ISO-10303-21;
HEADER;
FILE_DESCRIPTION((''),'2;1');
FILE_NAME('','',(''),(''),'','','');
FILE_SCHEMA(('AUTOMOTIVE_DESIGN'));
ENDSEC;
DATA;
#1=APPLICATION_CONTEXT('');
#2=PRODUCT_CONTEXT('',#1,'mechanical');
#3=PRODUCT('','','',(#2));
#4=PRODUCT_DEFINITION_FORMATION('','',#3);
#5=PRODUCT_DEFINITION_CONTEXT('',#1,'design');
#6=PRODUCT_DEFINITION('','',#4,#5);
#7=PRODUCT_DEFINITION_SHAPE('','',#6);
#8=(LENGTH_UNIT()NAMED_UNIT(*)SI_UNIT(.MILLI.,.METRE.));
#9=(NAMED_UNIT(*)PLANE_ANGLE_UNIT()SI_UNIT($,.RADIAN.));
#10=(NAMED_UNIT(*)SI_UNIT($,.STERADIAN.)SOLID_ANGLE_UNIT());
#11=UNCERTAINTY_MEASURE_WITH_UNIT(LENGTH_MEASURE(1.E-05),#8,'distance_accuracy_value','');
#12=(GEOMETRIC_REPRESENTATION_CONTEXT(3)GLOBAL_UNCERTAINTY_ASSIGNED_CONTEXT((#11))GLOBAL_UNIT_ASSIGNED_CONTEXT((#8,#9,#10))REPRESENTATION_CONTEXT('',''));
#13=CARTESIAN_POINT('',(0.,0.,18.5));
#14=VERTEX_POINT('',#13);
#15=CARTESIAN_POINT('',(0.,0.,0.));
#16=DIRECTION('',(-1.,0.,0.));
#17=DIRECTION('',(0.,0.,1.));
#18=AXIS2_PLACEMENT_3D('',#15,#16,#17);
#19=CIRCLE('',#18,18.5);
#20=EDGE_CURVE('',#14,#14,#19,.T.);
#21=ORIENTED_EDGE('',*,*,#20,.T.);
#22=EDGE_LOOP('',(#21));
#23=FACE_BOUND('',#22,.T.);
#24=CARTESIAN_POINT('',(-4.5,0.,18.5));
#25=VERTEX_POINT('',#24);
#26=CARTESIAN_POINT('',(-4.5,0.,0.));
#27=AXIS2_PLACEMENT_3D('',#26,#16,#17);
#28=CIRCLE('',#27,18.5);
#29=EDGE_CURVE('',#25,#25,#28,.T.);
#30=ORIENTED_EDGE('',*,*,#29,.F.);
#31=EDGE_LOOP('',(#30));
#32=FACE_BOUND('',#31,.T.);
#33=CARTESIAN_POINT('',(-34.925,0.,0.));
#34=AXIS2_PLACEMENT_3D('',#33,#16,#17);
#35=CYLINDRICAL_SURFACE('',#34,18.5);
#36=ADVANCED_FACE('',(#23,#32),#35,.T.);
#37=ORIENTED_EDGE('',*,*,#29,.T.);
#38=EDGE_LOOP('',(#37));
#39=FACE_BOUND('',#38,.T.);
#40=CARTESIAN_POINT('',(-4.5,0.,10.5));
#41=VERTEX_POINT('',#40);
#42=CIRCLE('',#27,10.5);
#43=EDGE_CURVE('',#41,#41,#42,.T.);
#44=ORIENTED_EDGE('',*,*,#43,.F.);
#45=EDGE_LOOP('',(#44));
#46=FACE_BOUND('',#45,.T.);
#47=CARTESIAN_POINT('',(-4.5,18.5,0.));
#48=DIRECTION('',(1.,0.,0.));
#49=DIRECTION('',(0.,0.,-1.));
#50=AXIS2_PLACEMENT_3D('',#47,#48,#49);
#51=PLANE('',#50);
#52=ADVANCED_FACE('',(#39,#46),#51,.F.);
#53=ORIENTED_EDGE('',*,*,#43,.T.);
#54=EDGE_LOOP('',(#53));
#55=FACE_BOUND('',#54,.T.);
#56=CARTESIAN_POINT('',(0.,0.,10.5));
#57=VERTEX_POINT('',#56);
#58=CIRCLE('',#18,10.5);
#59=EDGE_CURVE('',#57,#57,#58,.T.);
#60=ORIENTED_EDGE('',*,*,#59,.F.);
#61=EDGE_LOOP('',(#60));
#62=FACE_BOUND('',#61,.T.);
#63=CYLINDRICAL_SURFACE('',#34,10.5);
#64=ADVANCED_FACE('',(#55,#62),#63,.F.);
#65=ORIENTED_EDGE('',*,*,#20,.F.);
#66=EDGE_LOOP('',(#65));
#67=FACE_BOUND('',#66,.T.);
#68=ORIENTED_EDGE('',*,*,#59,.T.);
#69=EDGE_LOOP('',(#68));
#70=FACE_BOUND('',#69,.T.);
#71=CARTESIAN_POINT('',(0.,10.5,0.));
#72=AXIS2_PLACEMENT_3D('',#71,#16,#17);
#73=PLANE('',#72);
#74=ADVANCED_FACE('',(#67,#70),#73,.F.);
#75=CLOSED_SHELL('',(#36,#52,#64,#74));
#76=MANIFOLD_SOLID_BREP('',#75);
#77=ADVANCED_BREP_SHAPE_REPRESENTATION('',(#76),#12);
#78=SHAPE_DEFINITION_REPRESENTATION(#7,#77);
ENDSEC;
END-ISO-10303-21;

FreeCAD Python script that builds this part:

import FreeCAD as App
import Part
import Sketcher

V = App.Vector

doc = App.newDocument("Part")
body = doc.addObject("PartDesign::Body", "Body")

sketch1 = body.newObject("Sketcher::SketchObject", "Sketch")
sketch1.AttachmentSupport = (doc.getObject("XY_Plane"), [""])
sketch1.MapMode = "FlatFace"
sketch1.addGeometry(Part.LineSegment(V(-4.5, 18.5, 0), V(-4.5, 10.5, 0)), False)
sketch1.addGeometry(Part.LineSegment(V(-4.5, 10.5, 0), V(0, 10.5, 0)), False)
sketch1.addGeometry(Part.LineSegment(V(0, 10.5, 0), V(0, 18.5, 0)), False)
sketch1.addGeometry(Part.LineSegment(V(0, 18.5, 0), V(-4.5, 18.5, 0)), False)
sketch1.addConstraint(Sketcher.Constraint("Coincident", 0, 2, 1, 1))
sketch1.addConstraint(Sketcher.Constraint("Coincident", 1, 2, 2, 1))
sketch1.addConstraint(Sketcher.Constraint("Coincident", 2, 2, 3, 1))
sketch1.addConstraint(Sketcher.Constraint("Coincident", 3, 2, 0, 1))
sketch1.addConstraint(Sketcher.Constraint("Vertical", 0))
sketch1.addConstraint(Sketcher.Constraint("Horizontal", 1))
sketch1.addConstraint(Sketcher.Constraint("Vertical", 2))
sketch1.addConstraint(Sketcher.Constraint("Horizontal", 3))
sketch1.addConstraint(Sketcher.Constraint("PointOnObject", 1, 2, -2))
sketch1.addConstraint(Sketcher.Constraint("DistanceY", 0, 2, 0, 1, 8.0))
sketch1.addConstraint(Sketcher.Constraint("DistanceX", 1, 1, 1, 2, 4.5))
sketch1.addConstraint(Sketcher.Constraint("DistanceY", -1, 1, 0, 2, 10.5))
revolution = body.newObject("PartDesign::Revolution", "Revolution")
revolution.Profile = sketch1
revolution.ReferenceAxis = (sketch1, ["H_Axis"])
revolution.Angle = 360

doc.recompute()
